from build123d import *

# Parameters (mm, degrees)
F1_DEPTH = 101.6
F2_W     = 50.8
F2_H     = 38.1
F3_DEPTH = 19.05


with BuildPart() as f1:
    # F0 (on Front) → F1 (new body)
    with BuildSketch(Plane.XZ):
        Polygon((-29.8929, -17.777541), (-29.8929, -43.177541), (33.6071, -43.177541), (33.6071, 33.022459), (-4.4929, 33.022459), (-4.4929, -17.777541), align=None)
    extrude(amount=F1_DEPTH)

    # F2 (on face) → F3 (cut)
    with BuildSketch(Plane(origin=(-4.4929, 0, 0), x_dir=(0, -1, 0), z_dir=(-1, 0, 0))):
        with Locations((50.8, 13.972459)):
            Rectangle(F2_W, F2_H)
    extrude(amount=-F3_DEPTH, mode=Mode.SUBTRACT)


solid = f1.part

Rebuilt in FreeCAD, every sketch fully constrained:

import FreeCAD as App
import Part
import Sketcher
from FreeCAD import Vector
Q = App.Units.Quantity


def add_polygon(sketch, points):
    """Adds a closed chain of lines whose ends are joined by coincident constraints."""
    first, n = sketch.GeometryCount, len(points)
    for a, b in zip(points, points[1:] + points[:1]):
        sketch.addGeometry(Part.LineSegment(App.Vector(*a, 0), App.Vector(*b, 0)), False)
    for i in range(n):
        sketch.addConstraint(Sketcher.Constraint("Coincident", first + i, 2, first + (i + 1) % n, 1))

doc = App.newDocument("Part")
params = doc.addObject("Spreadsheet::Sheet", "Params")
for row, (alias, value) in enumerate([
    ("sketch1_width", "1 in"),
    ("sketch1_height", "3 in"),
    ("sketch1_width2", "2.5 in"),
    ("pad1_length", "4 in"),
    ("sketch2_width", "2 in"),
    ("sketch2_height", "1.5 in"),
    ("pocket1_length", "0.75 in"),
], start=1):
    params.set(f"A{row}", alias)
    params.set(f"B{row}", "=" + value)
    params.setAlias(f"B{row}", alias)

body = doc.addObject("PartDesign::Body", "Body")

# Sketch on XZ plane
sketch1 = body.newObject("Sketcher::SketchObject", "Sketch")
sketch1.AttachmentSupport = (doc.getObject("XZ_Plane"), [""])
sketch1.MapMode = "FlatFace"
add_polygon(sketch1, [(-30, -18), (-30, -43), (34, -43), (34, 33), (-4, 33), (-4, -18)])  # lines 0-5
sketch1.addConstraint([
    Sketcher.Constraint("Vertical", 0),
    Sketcher.Constraint("Horizontal", 1),
    Sketcher.Constraint("Vertical", 2),
    Sketcher.Constraint("Horizontal", 3),
    Sketcher.Constraint("Vertical", 4),
    Sketcher.Constraint("Horizontal", 5),
    Sketcher.Constraint("Equal", 5, 0),
    Sketcher.Constraint("DistanceX", 5, 2, 5, 1, Q("1 in")),
    Sketcher.Constraint("DistanceY", 2, 1, 2, 2, Q("3 in")),
    Sketcher.Constraint("DistanceX", 1, 1, 1, 2, Q("2.5 in")),
    Sketcher.Constraint("DistanceX", 0, 2, -1, 1, 29.8929),
    Sketcher.Constraint("DistanceY", 0, 2, -1, 1, 43.177541),
])
sketch1.setExpression("Constraints[13]", "Params.sketch1_width")
sketch1.setExpression("Constraints[14]", "Params.sketch1_height")
sketch1.setExpression("Constraints[15]", "Params.sketch1_width2")
pad1 = body.newObject("PartDesign::Pad", "Pad")
pad1.Profile = sketch1
pad1.setExpression("Length", "Params.pad1_length")

# Sketch on YZ plane
sketch2 = body.newObject("Sketcher::SketchObject", "Sketch001")
sketch2.AttachmentSupport = (doc.getObject("YZ_Plane"), [""])
sketch2.MapMode = "FlatFace"
sketch2.AttachmentOffset = App.Placement(Vector(0, 0, -4.4929), App.Rotation())
add_polygon(sketch2, [(-25, 33), (-25, -5), (-76, -5), (-76, 33)])  # lines 0-3
sketch2.addConstraint([
    Sketcher.Constraint("Vertical", 0),
    Sketcher.Constraint("Horizontal", 1),
    Sketcher.Constraint("Vertical", 2),
    Sketcher.Constraint("Horizontal", 3),
    Sketcher.Constraint("DistanceX", 1, 2, 1, 1, Q("2 in")),
    Sketcher.Constraint("DistanceY", 0, 2, 0, 1, Q("1.5 in")),
    Sketcher.Constraint("DistanceX", 0, 2, -1, 1, Q("1 in")),
    Sketcher.Constraint("DistanceY", 0, 2, -1, 1, 5.077541),
])
sketch2.setExpression("Constraints[8]", "Params.sketch2_width")
sketch2.setExpression("Constraints[9]", "Params.sketch2_height")
pocket1 = body.newObject("PartDesign::Pocket", "Pocket")
pocket1.Profile = sketch2
pocket1.setExpression("Length", "Params.pocket1_length")
pocket1.Reversed = True

doc.recompute()
